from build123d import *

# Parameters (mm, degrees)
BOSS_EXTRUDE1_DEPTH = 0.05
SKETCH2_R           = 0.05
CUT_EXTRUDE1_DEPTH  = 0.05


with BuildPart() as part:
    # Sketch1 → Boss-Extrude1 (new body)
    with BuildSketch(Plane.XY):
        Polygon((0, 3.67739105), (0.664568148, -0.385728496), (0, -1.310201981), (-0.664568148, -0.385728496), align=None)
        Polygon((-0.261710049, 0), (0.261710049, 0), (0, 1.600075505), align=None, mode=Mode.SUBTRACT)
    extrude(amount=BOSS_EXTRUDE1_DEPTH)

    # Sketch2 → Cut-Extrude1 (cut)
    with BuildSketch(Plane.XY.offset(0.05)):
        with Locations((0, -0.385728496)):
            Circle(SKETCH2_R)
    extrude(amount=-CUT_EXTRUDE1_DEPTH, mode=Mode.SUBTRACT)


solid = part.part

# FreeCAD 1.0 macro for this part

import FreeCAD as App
import Part
import Sketcher


def add_polygon(sketch, points):
    """Adds a closed chain of lines whose ends are joined by coincident constraints."""
    first, n = sketch.GeometryCount, len(points)
    for a, b in zip(points, points[1:] + points[:1]):
        sketch.addGeometry(Part.LineSegment(App.Vector(*a, 0), App.Vector(*b, 0)), False)
    for i in range(n):
        sketch.addConstraint(Sketcher.Constraint("Coincident", first + i, 2, first + (i + 1) % n, 1))

doc = App.newDocument("Part")
body = doc.addObject("PartDesign::Body", "Body")

# Sketch on XY plane
sketch1 = body.newObject("Sketcher::SketchObject", "Sketch")
sketch1.AttachmentSupport = (doc.getObject("XY_Plane"), [""])
sketch1.MapMode = "FlatFace"
add_polygon(sketch1, [(0.7, -0.4), (0, 3.7), (-0.7, -0.4), (0, -1.3)])  # lines 0-3
add_polygon(sketch1, [(-0.3, 0), (0, 1.6), (0.3, 0)])  # lines 4-6
sketch1.addConstraint(Sketcher.Constraint("Horizontal", 6))
sketch1.addConstraint(Sketcher.Constraint("Symmetric", 5, 2, 6, 2, -1, 1))
sketch1.addConstraint(Sketcher.Constraint("Symmetric", 1, 2, 3, 2, -2))
sketch1.addConstraint(Sketcher.Constraint("PointOnObject", 0, 2, -2))
sketch1.addConstraint(Sketcher.Constraint("PointOnObject", 2, 2, -2))
sketch1.addConstraint(Sketcher.Constraint("PointOnObject", 4, 2, -2))
sketch1.addConstraint(Sketcher.Constraint("Parallel", 1, 4))
sketch1.addConstraint(Sketcher.Constraint("DistanceX", 6, 2, 6, 1, 0.52342))
sketch1.addConstraint(Sketcher.Constraint("DistanceY", 2, 2, -1, 1, 1.310202))
sketch1.addConstraint(Sketcher.Constraint("Distance", 0, 4.11711))
sketch1.addConstraint(Sketcher.Constraint("DistanceY", -1, 1, 0, 2, 3.677391))
sketch1.addConstraint(Sketcher.Constraint("DistanceX", 1, 2, -1, 1, 0.664568))
pad1 = body.newObject("PartDesign::Pad", "Pad")
pad1.Profile = sketch1
pad1.Length = 0.05

# Sketch on XY plane
sketch2 = body.newObject("Sketcher::SketchObject", "Sketch001")
sketch2.AttachmentSupport = (doc.getObject("XY_Plane"), [""])
sketch2.MapMode = "FlatFace"
sketch2.AttachmentOffset = App.Placement(App.Vector(0, 0, 0.05), App.Rotation())
sketch2.addGeometry(Part.Circle(App.Vector(0, -0.39, 0), App.Vector(0, 0, 1), 0.05), False)
sketch2.addConstraint(Sketcher.Constraint("PointOnObject", 0, 3, -2))
sketch2.addConstraint(Sketcher.Constraint("Diameter", 0, 0.1))
sketch2.addConstraint(Sketcher.Constraint("DistanceY", 0, 3, -1, 1, 0.385728))
pocket1 = body.newObject("PartDesign::Pocket", "Pocket")
pocket1.Profile = sketch2
pocket1.Length = 0.05

doc.recompute()
